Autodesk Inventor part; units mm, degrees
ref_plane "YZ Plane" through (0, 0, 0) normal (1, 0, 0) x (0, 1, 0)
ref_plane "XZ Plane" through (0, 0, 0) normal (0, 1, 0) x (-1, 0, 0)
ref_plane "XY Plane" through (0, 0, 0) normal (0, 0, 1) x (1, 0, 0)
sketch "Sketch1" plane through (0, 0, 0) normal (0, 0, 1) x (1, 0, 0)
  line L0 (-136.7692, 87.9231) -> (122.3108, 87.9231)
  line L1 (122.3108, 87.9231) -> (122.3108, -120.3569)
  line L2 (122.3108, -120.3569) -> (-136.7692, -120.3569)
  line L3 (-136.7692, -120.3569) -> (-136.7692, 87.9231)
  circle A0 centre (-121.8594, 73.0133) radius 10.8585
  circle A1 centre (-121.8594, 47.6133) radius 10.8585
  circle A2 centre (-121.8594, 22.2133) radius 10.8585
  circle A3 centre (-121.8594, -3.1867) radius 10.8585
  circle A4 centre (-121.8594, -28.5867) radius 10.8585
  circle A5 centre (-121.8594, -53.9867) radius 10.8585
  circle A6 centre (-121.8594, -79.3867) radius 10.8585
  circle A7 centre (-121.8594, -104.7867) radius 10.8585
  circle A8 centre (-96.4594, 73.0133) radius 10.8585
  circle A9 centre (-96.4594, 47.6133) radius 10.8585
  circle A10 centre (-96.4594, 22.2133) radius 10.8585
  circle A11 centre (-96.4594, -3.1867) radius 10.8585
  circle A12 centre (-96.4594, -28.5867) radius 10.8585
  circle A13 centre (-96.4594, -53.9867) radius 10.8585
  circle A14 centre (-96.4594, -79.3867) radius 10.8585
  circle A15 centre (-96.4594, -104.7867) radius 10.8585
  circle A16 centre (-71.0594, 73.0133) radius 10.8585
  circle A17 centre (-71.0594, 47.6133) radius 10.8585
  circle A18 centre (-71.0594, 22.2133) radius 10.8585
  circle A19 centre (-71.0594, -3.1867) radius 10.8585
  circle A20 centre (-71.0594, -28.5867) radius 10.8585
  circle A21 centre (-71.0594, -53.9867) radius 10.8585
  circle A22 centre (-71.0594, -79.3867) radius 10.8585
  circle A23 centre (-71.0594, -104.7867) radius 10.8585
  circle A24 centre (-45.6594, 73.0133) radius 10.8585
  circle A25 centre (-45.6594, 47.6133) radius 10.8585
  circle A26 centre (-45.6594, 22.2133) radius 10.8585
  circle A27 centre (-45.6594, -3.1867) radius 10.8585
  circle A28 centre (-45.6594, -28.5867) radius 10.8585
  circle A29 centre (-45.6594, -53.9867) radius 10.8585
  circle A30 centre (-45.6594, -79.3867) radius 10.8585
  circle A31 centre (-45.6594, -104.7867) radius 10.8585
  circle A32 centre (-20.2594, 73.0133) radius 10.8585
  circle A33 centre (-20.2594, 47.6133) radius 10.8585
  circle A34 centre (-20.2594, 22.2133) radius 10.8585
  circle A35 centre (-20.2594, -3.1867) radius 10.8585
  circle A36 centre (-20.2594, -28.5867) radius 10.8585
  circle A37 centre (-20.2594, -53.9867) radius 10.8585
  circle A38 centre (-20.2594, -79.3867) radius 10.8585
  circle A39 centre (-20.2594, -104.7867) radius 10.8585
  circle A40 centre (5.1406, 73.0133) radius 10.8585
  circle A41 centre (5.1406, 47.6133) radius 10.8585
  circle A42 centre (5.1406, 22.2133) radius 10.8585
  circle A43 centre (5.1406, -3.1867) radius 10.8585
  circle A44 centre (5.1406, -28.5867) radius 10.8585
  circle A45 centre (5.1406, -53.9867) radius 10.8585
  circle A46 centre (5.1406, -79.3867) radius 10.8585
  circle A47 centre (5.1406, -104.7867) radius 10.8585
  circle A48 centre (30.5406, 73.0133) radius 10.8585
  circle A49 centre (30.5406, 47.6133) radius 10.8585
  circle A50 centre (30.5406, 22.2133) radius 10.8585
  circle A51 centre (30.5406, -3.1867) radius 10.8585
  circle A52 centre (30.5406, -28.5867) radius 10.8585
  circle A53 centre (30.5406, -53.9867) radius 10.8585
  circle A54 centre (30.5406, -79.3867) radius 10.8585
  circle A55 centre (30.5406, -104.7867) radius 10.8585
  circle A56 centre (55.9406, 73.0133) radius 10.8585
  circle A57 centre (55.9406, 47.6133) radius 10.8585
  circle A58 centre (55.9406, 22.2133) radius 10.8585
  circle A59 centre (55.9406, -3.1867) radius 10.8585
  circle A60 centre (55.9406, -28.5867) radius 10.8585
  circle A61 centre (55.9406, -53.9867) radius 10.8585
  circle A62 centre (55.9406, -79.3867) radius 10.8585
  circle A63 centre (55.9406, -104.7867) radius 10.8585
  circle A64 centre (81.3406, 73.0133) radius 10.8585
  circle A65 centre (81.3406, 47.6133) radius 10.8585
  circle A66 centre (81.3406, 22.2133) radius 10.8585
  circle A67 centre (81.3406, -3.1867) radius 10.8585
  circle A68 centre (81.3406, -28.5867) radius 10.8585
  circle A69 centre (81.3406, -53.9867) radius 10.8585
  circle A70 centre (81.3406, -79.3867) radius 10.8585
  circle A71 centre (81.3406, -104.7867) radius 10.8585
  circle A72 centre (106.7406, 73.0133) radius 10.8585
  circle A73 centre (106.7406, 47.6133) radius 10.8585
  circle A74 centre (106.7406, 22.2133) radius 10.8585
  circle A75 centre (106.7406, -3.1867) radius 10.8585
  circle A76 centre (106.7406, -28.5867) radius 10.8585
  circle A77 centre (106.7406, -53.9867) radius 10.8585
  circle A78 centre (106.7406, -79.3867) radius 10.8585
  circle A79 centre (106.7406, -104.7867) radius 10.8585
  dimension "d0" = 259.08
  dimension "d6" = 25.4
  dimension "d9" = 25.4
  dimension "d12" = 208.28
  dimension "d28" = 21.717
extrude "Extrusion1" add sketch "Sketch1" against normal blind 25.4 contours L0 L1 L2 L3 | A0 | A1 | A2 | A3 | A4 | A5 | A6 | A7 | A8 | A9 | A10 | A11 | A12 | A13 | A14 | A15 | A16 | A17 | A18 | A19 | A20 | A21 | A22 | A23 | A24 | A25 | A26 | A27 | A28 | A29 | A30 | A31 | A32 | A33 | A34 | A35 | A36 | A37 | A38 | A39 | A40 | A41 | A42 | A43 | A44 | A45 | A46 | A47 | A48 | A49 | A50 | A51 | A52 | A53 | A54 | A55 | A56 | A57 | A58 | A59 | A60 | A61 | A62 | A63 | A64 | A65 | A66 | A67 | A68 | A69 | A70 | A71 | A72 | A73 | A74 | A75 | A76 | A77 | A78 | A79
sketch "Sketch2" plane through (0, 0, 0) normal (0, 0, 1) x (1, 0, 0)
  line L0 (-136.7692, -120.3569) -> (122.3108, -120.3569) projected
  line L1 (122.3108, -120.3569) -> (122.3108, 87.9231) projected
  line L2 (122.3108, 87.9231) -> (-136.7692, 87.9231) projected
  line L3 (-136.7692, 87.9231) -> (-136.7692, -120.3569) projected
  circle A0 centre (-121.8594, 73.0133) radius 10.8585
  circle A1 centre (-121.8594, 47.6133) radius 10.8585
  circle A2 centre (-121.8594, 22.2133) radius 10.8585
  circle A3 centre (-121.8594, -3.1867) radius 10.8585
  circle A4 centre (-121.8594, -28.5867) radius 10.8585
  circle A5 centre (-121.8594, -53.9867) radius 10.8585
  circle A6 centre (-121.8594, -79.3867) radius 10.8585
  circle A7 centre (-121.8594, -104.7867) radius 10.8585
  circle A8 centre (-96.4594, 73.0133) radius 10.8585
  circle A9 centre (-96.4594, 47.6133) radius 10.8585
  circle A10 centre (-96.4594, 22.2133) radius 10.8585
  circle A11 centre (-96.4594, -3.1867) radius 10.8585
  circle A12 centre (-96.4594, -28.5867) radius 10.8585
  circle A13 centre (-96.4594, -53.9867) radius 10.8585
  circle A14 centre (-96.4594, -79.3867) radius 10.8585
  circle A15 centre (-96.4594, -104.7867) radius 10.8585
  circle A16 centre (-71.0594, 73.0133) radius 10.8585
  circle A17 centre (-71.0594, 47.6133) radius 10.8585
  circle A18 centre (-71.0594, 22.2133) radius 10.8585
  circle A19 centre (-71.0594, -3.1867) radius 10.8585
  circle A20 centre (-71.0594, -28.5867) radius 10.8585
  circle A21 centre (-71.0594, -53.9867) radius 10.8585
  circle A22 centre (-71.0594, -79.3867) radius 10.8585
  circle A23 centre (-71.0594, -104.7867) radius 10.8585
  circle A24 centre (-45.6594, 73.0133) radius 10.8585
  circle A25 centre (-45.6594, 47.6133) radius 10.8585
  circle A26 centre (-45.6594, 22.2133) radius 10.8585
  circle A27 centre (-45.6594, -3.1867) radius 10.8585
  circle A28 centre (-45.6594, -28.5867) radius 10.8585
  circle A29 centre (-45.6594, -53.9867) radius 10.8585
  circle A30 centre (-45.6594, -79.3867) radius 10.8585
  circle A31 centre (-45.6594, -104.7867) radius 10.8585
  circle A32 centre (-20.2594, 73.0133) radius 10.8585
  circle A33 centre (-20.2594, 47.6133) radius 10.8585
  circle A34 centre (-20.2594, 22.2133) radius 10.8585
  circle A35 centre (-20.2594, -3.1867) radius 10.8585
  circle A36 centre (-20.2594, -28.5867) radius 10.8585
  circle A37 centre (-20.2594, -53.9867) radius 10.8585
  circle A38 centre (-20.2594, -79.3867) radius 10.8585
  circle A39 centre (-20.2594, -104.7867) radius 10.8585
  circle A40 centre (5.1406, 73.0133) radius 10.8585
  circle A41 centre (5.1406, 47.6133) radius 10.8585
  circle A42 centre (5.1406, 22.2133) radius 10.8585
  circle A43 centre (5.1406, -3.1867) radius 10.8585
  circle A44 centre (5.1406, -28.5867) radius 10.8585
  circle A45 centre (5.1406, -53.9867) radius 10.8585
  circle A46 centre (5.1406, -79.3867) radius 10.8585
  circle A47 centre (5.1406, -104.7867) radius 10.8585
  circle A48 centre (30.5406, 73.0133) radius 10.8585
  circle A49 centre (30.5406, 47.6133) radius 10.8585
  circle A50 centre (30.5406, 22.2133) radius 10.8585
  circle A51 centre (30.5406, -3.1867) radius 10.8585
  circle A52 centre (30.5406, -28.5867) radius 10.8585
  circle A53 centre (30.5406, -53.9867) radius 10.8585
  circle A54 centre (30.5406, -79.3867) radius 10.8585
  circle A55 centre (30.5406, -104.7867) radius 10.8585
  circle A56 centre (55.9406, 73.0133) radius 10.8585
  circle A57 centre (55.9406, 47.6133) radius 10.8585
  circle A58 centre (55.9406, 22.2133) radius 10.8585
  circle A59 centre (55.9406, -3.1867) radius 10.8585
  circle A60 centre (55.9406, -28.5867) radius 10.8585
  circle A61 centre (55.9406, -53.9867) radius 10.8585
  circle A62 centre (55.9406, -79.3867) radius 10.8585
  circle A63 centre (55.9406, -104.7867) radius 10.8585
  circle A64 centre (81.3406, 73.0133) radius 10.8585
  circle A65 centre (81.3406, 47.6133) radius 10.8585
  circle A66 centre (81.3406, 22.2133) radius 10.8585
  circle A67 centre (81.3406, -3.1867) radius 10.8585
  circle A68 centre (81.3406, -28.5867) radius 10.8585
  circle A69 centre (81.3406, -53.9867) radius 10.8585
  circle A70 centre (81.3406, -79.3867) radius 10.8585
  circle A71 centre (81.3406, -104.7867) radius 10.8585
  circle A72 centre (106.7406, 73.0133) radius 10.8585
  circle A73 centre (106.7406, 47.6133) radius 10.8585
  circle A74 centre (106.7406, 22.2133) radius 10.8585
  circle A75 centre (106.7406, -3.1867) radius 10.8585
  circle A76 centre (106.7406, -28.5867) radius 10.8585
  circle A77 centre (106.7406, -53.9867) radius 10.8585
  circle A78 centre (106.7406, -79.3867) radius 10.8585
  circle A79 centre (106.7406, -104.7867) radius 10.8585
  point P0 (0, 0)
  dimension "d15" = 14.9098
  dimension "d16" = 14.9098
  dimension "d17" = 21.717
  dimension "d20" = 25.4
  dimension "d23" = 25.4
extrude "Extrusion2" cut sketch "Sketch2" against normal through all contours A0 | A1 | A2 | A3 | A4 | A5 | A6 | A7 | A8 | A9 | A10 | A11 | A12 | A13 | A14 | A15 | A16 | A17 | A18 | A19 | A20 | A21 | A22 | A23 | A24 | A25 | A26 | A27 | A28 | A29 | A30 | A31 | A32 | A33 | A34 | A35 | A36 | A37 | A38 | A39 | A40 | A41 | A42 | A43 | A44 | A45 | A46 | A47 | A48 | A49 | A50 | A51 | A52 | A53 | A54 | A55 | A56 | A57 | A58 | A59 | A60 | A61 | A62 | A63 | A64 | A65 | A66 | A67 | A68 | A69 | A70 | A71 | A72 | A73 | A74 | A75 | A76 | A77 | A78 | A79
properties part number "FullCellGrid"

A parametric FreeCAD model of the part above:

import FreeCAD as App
import Part
import Sketcher
Q = App.Units.Quantity

doc = App.newDocument("Part")
body = doc.addObject("PartDesign::Body", "Body")

sketch1 = doc.addObject("Sketcher::SketchObject", "Sketch")
body.addObject(sketch1)
sketch1.AttachmentSupport = (doc.XY_Plane, [""])
sketch1.MapMode = "FlatFace"
sketch1.addGeometry([
    Part.LineSegment(App.Vector(122.3108, 87.9231, 0), App.Vector(-136.7692, 87.9231, 0)),
    Part.LineSegment(App.Vector(-136.7692, 87.9231, 0), App.Vector(-136.7692, -120.3569, 0)),
    Part.LineSegment(App.Vector(-136.7692, -120.3569, 0), App.Vector(122.3108, -120.3569, 0)),
    Part.LineSegment(App.Vector(122.3108, -120.3569, 0), App.Vector(122.3108, 87.9231, 0)),
], False)
sketch1.addConstraint([
    Sketcher.Constraint("Coincident", 0, 2, 1, 1),
    Sketcher.Constraint("Coincident", 1, 2, 2, 1),
    Sketcher.Constraint("Coincident", 2, 2, 3, 1),
    Sketcher.Constraint("Coincident", 3, 2, 0, 1),
    Sketcher.Constraint("Horizontal", 0),
    Sketcher.Constraint("Vertical", 1),
    Sketcher.Constraint("Horizontal", 2),
    Sketcher.Constraint("Vertical", 3),
    Sketcher.Constraint("DistanceX", 0, 2, 0, 1, Q("10.2 in")),
    Sketcher.Constraint("DistanceY", 1, 2, 1, 1, Q("8.2 in")),
    Sketcher.Constraint("DistanceX", 0, 2, -1, 1, 136.7692),
    Sketcher.Constraint("DistanceY", -1, 1, 0, 2, 87.923),
])
pad1 = doc.addObject("PartDesign::Pad", "Pad")
body.addObject(pad1)
pad1.Profile = sketch1
pad1.Length = Q("1 in")
pad1.Reversed = True

sketch2 = doc.addObject("Sketcher::SketchObject", "Sketch001")
body.addObject(sketch2)
sketch2.AttachmentSupport = (doc.XY_Plane, [""])
sketch2.MapMode = "FlatFace"
sketch2.addGeometry([
    Part.Circle(App.Vector(-121.8594, 73.0133, 0), App.Vector(0, 0, 1), 10.8585),
    Part.Circle(App.Vector(-121.8594, 47.6133, 0), App.Vector(0, 0, 1), 10.8585),
    Part.Circle(App.Vector(-121.8594, 22.2133, 0), App.Vector(0, 0, 1), 10.8585),
    Part.Circle(App.Vector(-121.8594, -3.1867, 0), App.Vector(0, 0, 1), 10.8585),
    Part.Circle(App.Vector(-121.8594, -28.5867, 0), App.Vector(0, 0, 1), 10.8585),
    Part.Circle(App.Vector(-121.8594, -53.9867, 0), App.Vector(0, 0, 1), 10.8585),
    Part.Circle(App.Vector(-121.8594, -79.3867, 0), App.Vector(0, 0, 1), 10.8585),
    Part.Circle(App.Vector(-121.8594, -104.7867, 0), App.Vector(0, 0, 1), 10.8585),
    Part.Circle(App.Vector(-96.4594, 73.0133, 0), App.Vector(0, 0, 1), 10.8585),
    Part.Circle(App.Vector(-96.4594, 47.6133, 0), App.Vector(0, 0, 1), 10.8585),
    Part.Circle(App.Vector(-96.4594, 22.2133, 0), App.Vector(0, 0, 1), 10.8585),
    Part.Circle(App.Vector(-96.4594, -3.1867, 0), App.Vector(0, 0, 1), 10.8585),
    Part.Circle(App.Vector(-96.4594, -28.5867, 0), App.Vector(0, 0, 1), 10.8585),
    Part.Circle(App.Vector(-96.4594, -53.9867, 0), App.Vector(0, 0, 1), 10.8585),
    Part.Circle(App.Vector(-96.4594, -79.3867, 0), App.Vector(0, 0, 1), 10.8585),
    Part.Circle(App.Vector(-96.4594, -104.7867, 0), App.Vector(0, 0, 1), 10.8585),
    Part.Circle(App.Vector(-71.0594, 73.0133, 0), App.Vector(0, 0, 1), 10.8585),
    Part.Circle(App.Vector(-71.0594, 47.6133, 0), App.Vector(0, 0, 1), 10.8585),
    Part.Circle(App.Vector(-71.0594, 22.2133, 0), App.Vector(0, 0, 1), 10.8585),
    Part.Circle(App.Vector(-71.0594, -3.1867, 0), App.Vector(0, 0, 1), 10.8585),
    Part.Circle(App.Vector(-71.0594, -28.5867, 0), App.Vector(0, 0, 1), 10.8585),
    Part.Circle(App.Vector(-71.0594, -53.9867, 0), App.Vector(0, 0, 1), 10.8585),
    Part.Circle(App.Vector(-71.0594, -79.3867, 0), App.Vector(0, 0, 1), 10.8585),
    Part.Circle(App.Vector(-71.0594, -104.7867, 0), App.Vector(0, 0, 1), 10.8585),
    Part.Circle(App.Vector(-45.6594, 73.0133, 0), App.Vector(0, 0, 1), 10.8585),
    Part.Circle(App.Vector(-45.6594, 47.6133, 0), App.Vector(0, 0, 1), 10.8585),
    Part.Circle(App.Vector(-45.6594, 22.2133, 0), App.Vector(0, 0, 1), 10.8585),
    Part.Circle(App.Vector(-45.6594, -3.1867, 0), App.Vector(0, 0, 1), 10.8585),
    Part.Circle(App.Vector(-45.6594, -28.5867, 0), App.Vector(0, 0, 1), 10.8585),
    Part.Circle(App.Vector(-45.6594, -53.9867, 0), App.Vector(0, 0, 1), 10.8585),
    Part.Circle(App.Vector(-45.6594, -79.3867, 0), App.Vector(0, 0, 1), 10.8585),
    Part.Circle(App.Vector(-45.6594, -104.7867, 0), App.Vector(0, 0, 1), 10.8585),
    Part.Circle(App.Vector(-20.2594, 73.0133, 0), App.Vector(0, 0, 1), 10.8585),
    Part.Circle(App.Vector(-20.2594, 47.6133, 0), App.Vector(0, 0, 1), 10.8585),
    Part.Circle(App.Vector(-20.2594, 22.2133, 0), App.Vector(0, 0, 1), 10.8585),
    Part.Circle(App.Vector(-20.2594, -3.1867, 0), App.Vector(0, 0, 1), 10.8585),
    Part.Circle(App.Vector(-20.2594, -28.5867, 0), App.Vector(0, 0, 1), 10.8585),
    Part.Circle(App.Vector(-20.2594, -53.9867, 0), App.Vector(0, 0, 1), 10.8585),
    Part.Circle(App.Vector(-20.2594, -79.3867, 0), App.Vector(0, 0, 1), 10.8585),
    Part.Circle(App.Vector(-20.2594, -104.7867, 0), App.Vector(0, 0, 1), 10.8585),
    Part.Circle(App.Vector(5.1406, 73.0133, 0), App.Vector(0, 0, 1), 10.8585),
    Part.Circle(App.Vector(5.1406, 47.6133, 0), App.Vector(0, 0, 1), 10.8585),
    Part.Circle(App.Vector(5.1406, 22.2133, 0), App.Vector(0, 0, 1), 10.8585),
    Part.Circle(App.Vector(5.1406, -3.1867, 0), App.Vector(0, 0, 1), 10.8585),
    Part.Circle(App.Vector(5.1406, -28.5867, 0), App.Vector(0, 0, 1), 10.8585),
    Part.Circle(App.Vector(5.1406, -53.9867, 0), App.Vector(0, 0, 1), 10.8585),
    Part.Circle(App.Vector(5.1406, -79.3867, 0), App.Vector(0, 0, 1), 10.8585),
    Part.Circle(App.Vector(5.1406, -104.7867, 0), App.Vector(0, 0, 1), 10.8585),
    Part.Circle(App.Vector(30.5406, 73.0133, 0), App.Vector(0, 0, 1), 10.8585),
    Part.Circle(App.Vector(30.5406, 47.6133, 0), App.Vector(0, 0, 1), 10.8585),
    Part.Circle(App.Vector(30.5406, 22.2133, 0), App.Vector(0, 0, 1), 10.8585),
    Part.Circle(App.Vector(30.5406, -3.1867, 0), App.Vector(0, 0, 1), 10.8585),
    Part.Circle(App.Vector(30.5406, -28.5867, 0), App.Vector(0, 0, 1), 10.8585),
    Part.Circle(App.Vector(30.5406, -53.9867, 0), App.Vector(0, 0, 1), 10.8585),
    Part.Circle(App.Vector(30.5406, -79.3867, 0), App.Vector(0, 0, 1), 10.8585),
    Part.Circle(App.Vector(30.5406, -104.7867, 0), App.Vector(0, 0, 1), 10.8585),
    Part.Circle(App.Vector(55.9406, 73.0133, 0), App.Vector(0, 0, 1), 10.8585),
    Part.Circle(App.Vector(55.9406, 47.6133, 0), App.Vector(0, 0, 1), 10.8585),
    Part.Circle(App.Vector(55.9406, 22.2133, 0), App.Vector(0, 0, 1), 10.8585),
    Part.Circle(App.Vector(55.9406, -3.1867, 0), App.Vector(0, 0, 1), 10.8585),
    Part.Circle(App.Vector(55.9406, -28.5867, 0), App.Vector(0, 0, 1), 10.8585),
    Part.Circle(App.Vector(55.9406, -53.9867, 0), App.Vector(0, 0, 1), 10.8585),
    Part.Circle(App.Vector(55.9406, -79.3867, 0), App.Vector(0, 0, 1), 10.8585),
    Part.Circle(App.Vector(55.9406, -104.7867, 0), App.Vector(0, 0, 1), 10.8585),
    Part.Circle(App.Vector(81.3406, 73.0133, 0), App.Vector(0, 0, 1), 10.8585),
    Part.Circle(App.Vector(81.3406, 47.6133, 0), App.Vector(0, 0, 1), 10.8585),
    Part.Circle(App.Vector(81.3406, 22.2133, 0), App.Vector(0, 0, 1), 10.8585),
    Part.Circle(App.Vector(81.3406, -3.1867, 0), App.Vector(0, 0, 1), 10.8585),
    Part.Circle(App.Vector(81.3406, -28.5867, 0), App.Vector(0, 0, 1), 10.8585),
    Part.Circle(App.Vector(81.3406, -53.9867, 0), App.Vector(0, 0, 1), 10.8585),
    Part.Circle(App.Vector(81.3406, -79.3867, 0), App.Vector(0, 0, 1), 10.8585),
    Part.Circle(App.Vector(81.3406, -104.7867, 0), App.Vector(0, 0, 1), 10.8585),
    Part.Circle(App.Vector(106.7406, 73.0133, 0), App.Vector(0, 0, 1), 10.8585),
    Part.Circle(App.Vector(106.7406, 47.6133, 0), App.Vector(0, 0, 1), 10.8585),
    Part.Circle(App.Vector(106.7406, 22.2133, 0), App.Vector(0, 0, 1), 10.8585),
    Part.Circle(App.Vector(106.7406, -3.1867, 0), App.Vector(0, 0, 1), 10.8585),
    Part.Circle(App.Vector(106.7406, -28.5867, 0), App.Vector(0, 0, 1), 10.8585),
    Part.Circle(App.Vector(106.7406, -53.9867, 0), App.Vector(0, 0, 1), 10.8585),
    Part.Circle(App.Vector(106.7406, -79.3867, 0), App.Vector(0, 0, 1), 10.8585),
    Part.Circle(App.Vector(106.7406, -104.7867, 0), App.Vector(0, 0, 1), 10.8585),
], False)
sketch2.addConstraint([
    Sketcher.Constraint("Equal", 0, 1),
    Sketcher.Constraint("Equal", 1, 2),
    Sketcher.Constraint("Equal", 2, 3),
    Sketcher.Constraint("Equal", 3, 4),
    Sketcher.Constraint("Equal", 4, 5),
    Sketcher.Constraint("Equal", 5, 6),
    Sketcher.Constraint("Equal", 6, 7),
    Sketcher.Constraint("Equal", 7, 8),
    Sketcher.Constraint("Equal", 8, 9),
    Sketcher.Constraint("Equal", 9, 10),
    Sketcher.Constraint("Equal", 10, 11),
    Sketcher.Constraint("Equal", 11, 12),
    Sketcher.Constraint("Equal", 12, 13),
    Sketcher.Constraint("Equal", 13, 14),
    Sketcher.Constraint("Equal", 14, 15),
    Sketcher.Constraint("Equal", 15, 16),
    Sketcher.Constraint("Equal", 16, 17),
    Sketcher.Constraint("Equal", 17, 18),
    Sketcher.Constraint("Equal", 18, 19),
    Sketcher.Constraint("Equal", 19, 20),
    Sketcher.Constraint("Equal", 20, 21),
    Sketcher.Constraint("Equal", 21, 22),
    Sketcher.Constraint("Equal", 22, 23),
    Sketcher.Constraint("Equal", 23, 24),
    Sketcher.Constraint("Equal", 24, 25),
    Sketcher.Constraint("Equal", 25, 26),
    Sketcher.Constraint("Equal", 26, 27),
    Sketcher.Constraint("Equal", 27, 28),
    Sketcher.Constraint("Equal", 28, 29),
    Sketcher.Constraint("Equal", 29, 30),
    Sketcher.Constraint("Equal", 30, 31),
    Sketcher.Constraint("Equal", 31, 32),
    Sketcher.Constraint("Equal", 32, 33),
    Sketcher.Constraint("Equal", 33, 34),
    Sketcher.Constraint("Equal", 34, 35),
    Sketcher.Constraint("Equal", 35, 36),
    Sketcher.Constraint("Equal", 36, 37),
    Sketcher.Constraint("Equal", 37, 38),
    Sketcher.Constraint("Equal", 38, 39),
    Sketcher.Constraint("Equal", 39, 40),
    Sketcher.Constraint("Equal", 40, 41),
    Sketcher.Constraint("Equal", 41, 42),
    Sketcher.Constraint("Equal", 42, 43),
    Sketcher.Constraint("Equal", 43, 44),
    Sketcher.Constraint("Equal", 44, 45),
    Sketcher.Constraint("Equal", 45, 46),
    Sketcher.Constraint("Equal", 46, 47),
    Sketcher.Constraint("Equal", 47, 48),
    Sketcher.Constraint("Equal", 48, 49),
    Sketcher.Constraint("Equal", 49, 50),
    Sketcher.Constraint("Equal", 50, 51),
    Sketcher.Constraint("Equal", 51, 52),
    Sketcher.Constraint("Equal", 52, 53),
    Sketcher.Constraint("Equal", 53, 54),
    Sketcher.Constraint("Equal", 54, 55),
    Sketcher.Constraint("Equal", 55, 56),
    Sketcher.Constraint("Equal", 56, 57),
    Sketcher.Constraint("Equal", 57, 58),
    Sketcher.Constraint("Equal", 58, 59),
    Sketcher.Constraint("Equal", 59, 60),
    Sketcher.Constraint("Equal", 60, 61),
    Sketcher.Constraint("Equal", 61, 62),
    Sketcher.Constraint("Equal", 62, 63),
    Sketcher.Constraint("Equal", 63, 64),
    Sketcher.Constraint("Equal", 64, 65),
    Sketcher.Constraint("Equal", 65, 66),
    Sketcher.Constraint("Equal", 66, 67),
    Sketcher.Constraint("Equal", 67, 68),
    Sketcher.Constraint("Equal", 68, 69),
    Sketcher.Constraint("Equal", 69, 70),
    Sketcher.Constraint("Equal", 70, 71),
    Sketcher.Constraint("Equal", 71, 72),
    Sketcher.Constraint("Equal", 72, 73),
    Sketcher.Constraint("Equal", 73, 74),
    Sketcher.Constraint("Equal", 74, 75),
    Sketcher.Constraint("Equal", 75, 76),
    Sketcher.Constraint("Equal", 76, 77),
    Sketcher.Constraint("Equal", 77, 78),
    Sketcher.Constraint("Equal", 78, 79),
    Sketcher.Constraint("Horizontal", 0, 3, 8, 3),
    Sketcher.Constraint("Horizontal", 1, 3, 9, 3),
    Sketcher.Constraint("Horizontal", 2, 3, 10, 3),
    Sketcher.Constraint("Horizontal", 3, 3, 11, 3),
    Sketcher.Constraint("Horizontal", 4, 3, 12, 3),
    Sketcher.Constraint("Horizontal", 5, 3, 13, 3),
    Sketcher.Constraint("Horizontal", 6, 3, 14, 3),
    Sketcher.Constraint("Horizontal", 7, 3, 15, 3),
    Sketcher.Constraint("Horizontal", 8, 3, 16, 3),
    Sketcher.Constraint("Horizontal", 9, 3, 17, 3),
    Sketcher.Constraint("Horizontal", 10, 3, 18, 3),
    Sketcher.Constraint("Horizontal", 11, 3, 19, 3),
    Sketcher.Constraint("Horizontal", 12, 3, 20, 3),
    Sketcher.Constraint("Horizontal", 13, 3, 21, 3),
    Sketcher.Constraint("Horizontal", 14, 3, 22, 3),
    Sketcher.Constraint("Horizontal", 15, 3, 23, 3),
    Sketcher.Constraint("Horizontal", 16, 3, 24, 3),
    Sketcher.Constraint("Horizontal", 17, 3, 25, 3),
    Sketcher.Constraint("Horizontal", 18, 3, 26, 3),
    Sketcher.Constraint("Horizontal", 19, 3, 27, 3),
    Sketcher.Constraint("Horizontal", 20, 3, 28, 3),
    Sketcher.Constraint("Horizontal", 21, 3, 29, 3),
    Sketcher.Constraint("Horizontal", 22, 3, 30, 3),
    Sketcher.Constraint("Horizontal", 23, 3, 31, 3),
    Sketcher.Constraint("Horizontal", 24, 3, 32, 3),
    Sketcher.Constraint("Horizontal", 25, 3, 33, 3),
    Sketcher.Constraint("Horizontal", 26, 3, 34, 3),
    Sketcher.Constraint("Horizontal", 27, 3, 35, 3),
    Sketcher.Constraint("Horizontal", 28, 3, 36, 3),
    Sketcher.Constraint("Horizontal", 29, 3, 37, 3),
    Sketcher.Constraint("Horizontal", 30, 3, 38, 3),
    Sketcher.Constraint("Horizontal", 31, 3, 39, 3),
    Sketcher.Constraint("Horizontal", 32, 3, 40, 3),
    Sketcher.Constraint("Horizontal", 33, 3, 41, 3),
    Sketcher.Constraint("Horizontal", 34, 3, 42, 3),
    Sketcher.Constraint("Horizontal", 35, 3, 43, 3),
    Sketcher.Constraint("Horizontal", 36, 3, 44, 3),
    Sketcher.Constraint("Horizontal", 37, 3, 45, 3),
    Sketcher.Constraint("Horizontal", 38, 3, 46, 3),
    Sketcher.Constraint("Horizontal", 39, 3, 47, 3),
    Sketcher.Constraint("Horizontal", 40, 3, 48, 3),
    Sketcher.Constraint("Horizontal", 41, 3, 49, 3),
    Sketcher.Constraint("Horizontal", 42, 3, 50, 3),
    Sketcher.Constraint("Horizontal", 43, 3, 51, 3),
    Sketcher.Constraint("Horizontal", 44, 3, 52, 3),
    Sketcher.Constraint("Horizontal", 45, 3, 53, 3),
    Sketcher.Constraint("Horizontal", 46, 3, 54, 3),
    Sketcher.Constraint("Horizontal", 47, 3, 55, 3),
    Sketcher.Constraint("Horizontal", 48, 3, 56, 3),
    Sketcher.Constraint("Horizontal", 49, 3, 57, 3),
    Sketcher.Constraint("Horizontal", 50, 3, 58, 3),
    Sketcher.Constraint("Horizontal", 51, 3, 59, 3),
    Sketcher.Constraint("Horizontal", 52, 3, 60, 3),
    Sketcher.Constraint("Horizontal", 53, 3, 61, 3),
    Sketcher.Constraint("Horizontal", 54, 3, 62, 3),
    Sketcher.Constraint("Horizontal", 55, 3, 63, 3),
    Sketcher.Constraint("Horizontal", 56, 3, 64, 3),
    Sketcher.Constraint("Horizontal", 57, 3, 65, 3),
    Sketcher.Constraint("Horizontal", 58, 3, 66, 3),
    Sketcher.Constraint("Horizontal", 59, 3, 67, 3),
    Sketcher.Constraint("Horizontal", 60, 3, 68, 3),
    Sketcher.Constraint("Horizontal", 61, 3, 69, 3),
    Sketcher.Constraint("Horizontal", 62, 3, 70, 3),
    Sketcher.Constraint("Horizontal", 63, 3, 71, 3),
    Sketcher.Constraint("Horizontal", 64, 3, 72, 3),
    Sketcher.Constraint("Horizontal", 65, 3, 73, 3),
    Sketcher.Constraint("Horizontal", 66, 3, 74, 3),
    Sketcher.Constraint("Horizontal", 67, 3, 75, 3),
    Sketcher.Constraint("Horizontal", 68, 3, 76, 3),
    Sketcher.Constraint("Horizontal", 69, 3, 77, 3),
    Sketcher.Constraint("Horizontal", 70, 3, 78, 3),
    Sketcher.Constraint("Horizontal", 71, 3, 79, 3),
    Sketcher.Constraint("Vertical", 0, 3, 1, 3),
    Sketcher.Constraint("Vertical", 1, 3, 2, 3),
    Sketcher.Constraint("Vertical", 2, 3, 3, 3),
    Sketcher.Constraint("Vertical", 3, 3, 4, 3),
    Sketcher.Constraint("Vertical", 4, 3, 5, 3),
    Sketcher.Constraint("Vertical", 5, 3, 6, 3),
    Sketcher.Constraint("Vertical", 6, 3, 7, 3),
    Sketcher.Constraint("Vertical", 8, 3, 9, 3),
    Sketcher.Constraint("Vertical", 9, 3, 10, 3),
    Sketcher.Constraint("Vertical", 10, 3, 11, 3),
    Sketcher.Constraint("Vertical", 11, 3, 12, 3),
    Sketcher.Constraint("Vertical", 12, 3, 13, 3),
    Sketcher.Constraint("Vertical", 13, 3, 14, 3),
    Sketcher.Constraint("Vertical", 14, 3, 15, 3),
    Sketcher.Constraint("Vertical", 16, 3, 17, 3),
    Sketcher.Constraint("Vertical", 17, 3, 18, 3),
    Sketcher.Constraint("Vertical", 18, 3, 19, 3),
    Sketcher.Constraint("Vertical", 19, 3, 20, 3),
    Sketcher.Constraint("Vertical", 20, 3, 21, 3),
    Sketcher.Constraint("Vertical", 21, 3, 22, 3),
    Sketcher.Constraint("Vertical", 22, 3, 23, 3),
    Sketcher.Constraint("Vertical", 24, 3, 25, 3),
    Sketcher.Constraint("Vertical", 25, 3, 26, 3),
    Sketcher.Constraint("Vertical", 26, 3, 27, 3),
    Sketcher.Constraint("Vertical", 27, 3, 28, 3),
    Sketcher.Constraint("Vertical", 28, 3, 29, 3),
    Sketcher.Constraint("Vertical", 29, 3, 30, 3),
    Sketcher.Constraint("Vertical", 30, 3, 31, 3),
    Sketcher.Constraint("Vertical", 32, 3, 33, 3),
    Sketcher.Constraint("Vertical", 33, 3, 34, 3),
    Sketcher.Constraint("Vertical", 34, 3, 35, 3),
    Sketcher.Constraint("Vertical", 35, 3, 36, 3),
    Sketcher.Constraint("Vertical", 36, 3, 37, 3),
    Sketcher.Constraint("Vertical", 37, 3, 38, 3),
    Sketcher.Constraint("Vertical", 38, 3, 39, 3),
    Sketcher.Constraint("Vertical", 40, 3, 41, 3),
    Sketcher.Constraint("Vertical", 41, 3, 42, 3),
    Sketcher.Constraint("Vertical", 42, 3, 43, 3),
    Sketcher.Constraint("Vertical", 43, 3, 44, 3),
    Sketcher.Constraint("Vertical", 44, 3, 45, 3),
    Sketcher.Constraint("Vertical", 45, 3, 46, 3),
    Sketcher.Constraint("Vertical", 46, 3, 47, 3),
    Sketcher.Constraint("Vertical", 48, 3, 49, 3),
    Sketcher.Constraint("Vertical", 49, 3, 50, 3),
    Sketcher.Constraint("Vertical", 50, 3, 51, 3),
    Sketcher.Constraint("Vertical", 51, 3, 52, 3),
    Sketcher.Constraint("Vertical", 52, 3, 53, 3),
    Sketcher.Constraint("Vertical", 53, 3, 54, 3),
    Sketcher.Constraint("Vertical", 54, 3, 55, 3),
    Sketcher.Constraint("Vertical", 56, 3, 57, 3),
    Sketcher.Constraint("Vertical", 57, 3, 58, 3),
    Sketcher.Constraint("Vertical", 58, 3, 59, 3),
    Sketcher.Constraint("Vertical", 59, 3, 60, 3),
    Sketcher.Constraint("Vertical", 60, 3, 61, 3),
    Sketcher.Constraint("Vertical", 61, 3, 62, 3),
    Sketcher.Constraint("Vertical", 62, 3, 63, 3),
    Sketcher.Constraint("Vertical", 64, 3, 65, 3),
    Sketcher.Constraint("Vertical", 65, 3, 66, 3),
    Sketcher.Constraint("Vertical", 66, 3, 67, 3),
    Sketcher.Constraint("Vertical", 67, 3, 68, 3),
    Sketcher.Constraint("Vertical", 68, 3, 69, 3),
    Sketcher.Constraint("Vertical", 69, 3, 70, 3),
    Sketcher.Constraint("Vertical", 70, 3, 71, 3),
    Sketcher.Constraint("Vertical", 72, 3, 73, 3),
    Sketcher.Constraint("Vertical", 73, 3, 74, 3),
    Sketcher.Constraint("Vertical", 74, 3, 75, 3),
    Sketcher.Constraint("Vertical", 75, 3, 76, 3),
    Sketcher.Constraint("Vertical", 76, 3, 77, 3),
    Sketcher.Constraint("Vertical", 77, 3, 78, 3),
    Sketcher.Constraint("Vertical", 78, 3, 79, 3),
    Sketcher.Constraint("Diameter", 0, Q("0.855 in")),
    Sketcher.Constraint("DistanceX", 0, 3, -1, 1, 121.8594),
    Sketcher.Constraint("DistanceY", -1, 1, 0, 3, 73.0133),
    Sketcher.Constraint("DistanceY", -1, 1, 1, 3, 47.6133),
    Sketcher.Constraint("DistanceY", -1, 1, 2, 3, 22.2133),
    Sketcher.Constraint("DistanceY", 3, 3, -1, 1, 3.1867),
    Sketcher.Constraint("DistanceY", 4, 3, -1, 1, 28.5867),
    Sketcher.Constraint("DistanceY", 5, 3, -1, 1, 53.9867),
    Sketcher.Constraint("DistanceY", 6, 3, -1, 1, 79.3867),
    Sketcher.Constraint("DistanceY", 7, 3, -1, 1, 104.7867),
    Sketcher.Constraint("DistanceX", 8, 3, -1, 1, 96.4594),
    Sketcher.Constraint("DistanceX", 16, 3, -1, 1, 71.0594),
    Sketcher.Constraint("DistanceX", 24, 3, -1, 1, 45.6594),
    Sketcher.Constraint("DistanceX", 32, 3, -1, 1, 20.2594),
    Sketcher.Constraint("DistanceX", -1, 1, 40, 3, 5.1406),
    Sketcher.Constraint("DistanceX", -1, 1, 48, 3, 30.5406),
    Sketcher.Constraint("DistanceX", -1, 1, 56, 3, 55.9406),
    Sketcher.Constraint("DistanceX", -1, 1, 64, 3, 81.3406),
    Sketcher.Constraint("DistanceX", -1, 1, 72, 3, 106.7406),
])
pocket1 = doc.addObject("PartDesign::Pocket", "Pocket")
body.addObject(pocket1)
pocket1.Profile = sketch2
pocket1.Type = "ThroughAll"

doc.recompute()
